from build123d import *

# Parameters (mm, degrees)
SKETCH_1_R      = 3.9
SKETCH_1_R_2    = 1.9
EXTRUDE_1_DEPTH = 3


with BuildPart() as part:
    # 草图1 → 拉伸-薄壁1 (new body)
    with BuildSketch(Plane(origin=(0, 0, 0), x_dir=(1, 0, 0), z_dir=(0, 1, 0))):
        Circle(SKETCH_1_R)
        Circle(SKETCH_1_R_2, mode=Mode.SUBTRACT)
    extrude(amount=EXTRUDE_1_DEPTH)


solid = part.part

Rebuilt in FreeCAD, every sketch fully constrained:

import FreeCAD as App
import Part
import Sketcher
from FreeCAD import Vector
Q = App.Units.Quantity

doc = App.newDocument("Part")
params = doc.addObject("Spreadsheet::Sheet", "Params")
for row, (alias, value) in enumerate([
    ("sketch1_diameter", "7.8 mm"),
    ("sketch1_diameter2", "3.8 mm"),
    ("pad1_length", "3 mm"),
], start=1):
    params.set(f"A{row}", alias)
    params.set(f"B{row}", "=" + value)
    params.setAlias(f"B{row}", alias)

body = doc.addObject("PartDesign::Body", "Body")

sketch1 = doc.addObject("Sketcher::SketchObject", "Sketch")
body.addObject(sketch1)
sketch1.AttachmentSupport = (doc.XZ_Plane, [""])
sketch1.MapMode = "FlatFace"
sketch1.addGeometry([
    Part.Circle(Vector(0, 0, 0), Vector(0, 0, 1), 3.9),
    Part.Circle(Vector(0, 0, 0), Vector(0, 0, 1), 1.9),
], False)
sketch1.addConstraint([
    Sketcher.Constraint("Coincident", 0, 3, -1, 1),
    Sketcher.Constraint("Coincident", 1, 3, -1, 1),
    Sketcher.Constraint("Diameter", 0, Q("7.8 mm")),
    Sketcher.Constraint("Diameter", 1, Q("3.8 mm")),
])
sketch1.setExpression("Constraints[2]", "Params.sketch1_diameter")
sketch1.setExpression("Constraints[3]", "Params.sketch1_diameter2")
pad1 = doc.addObject("PartDesign::Pad", "Pad")
body.addObject(pad1)
pad1.Profile = sketch1
pad1.setExpression("Length", "Params.pad1_length")
pad1.Reversed = True

doc.recompute()
